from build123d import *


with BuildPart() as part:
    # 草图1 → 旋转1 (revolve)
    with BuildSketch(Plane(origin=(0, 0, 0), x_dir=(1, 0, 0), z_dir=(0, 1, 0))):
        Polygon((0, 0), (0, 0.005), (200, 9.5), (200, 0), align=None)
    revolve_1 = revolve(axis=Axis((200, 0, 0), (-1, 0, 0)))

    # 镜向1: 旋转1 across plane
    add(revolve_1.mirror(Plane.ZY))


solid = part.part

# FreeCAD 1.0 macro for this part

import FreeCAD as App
import Part
import Sketcher
from FreeCAD import Vector
Q = App.Units.Quantity

doc = App.newDocument("Part")
params = doc.addObject("Spreadsheet::Sheet", "Params")
for row, (alias, value) in enumerate([
    ("sketch1_width", "200 mm"),
    ("sketch1_height", "9.5 mm"),
    ("revolution_angle", "360 deg"),
], start=1):
    params.set(f"A{row}", alias)
    params.set(f"B{row}", "=" + value)
    params.setAlias(f"B{row}", alias)

body = doc.addObject("PartDesign::Body", "Body")

# Sketch on XZ plane
sketch1 = body.newObject("Sketcher::SketchObject", "Sketch")
sketch1.AttachmentSupport = (doc.getObject("XZ_Plane"), [""])
sketch1.MapMode = "FlatFace"
sketch1.addGeometry([
    Part.LineSegment(Vector(0, -0.005, 0), Vector(0, 0, 0)),
    Part.LineSegment(Vector(0, 0, 0), Vector(200, 0, 0)),
    Part.LineSegment(Vector(200, 0, 0), Vector(200, -9.5, 0)),
    Part.LineSegment(Vector(200, -9.5, 0), Vector(0, -0.005, 0)),
], False)
sketch1.addConstraint([
    Sketcher.Constraint("Coincident", 0, 2, 1, 1),
    Sketcher.Constraint("Coincident", 1, 2, 2, 1),
    Sketcher.Constraint("Coincident", 2, 2, 3, 1),
    Sketcher.Constraint("Coincident", 3, 2, 0, 1),
    Sketcher.Constraint("Vertical", 0),
    Sketcher.Constraint("Horizontal", 1),
    Sketcher.Constraint("Vertical", 2),
    Sketcher.Constraint("Coincident", 0, 2, -1, 1),
    Sketcher.Constraint("DistanceX", 1, 1, 1, 2, Q("200 mm")),
    Sketcher.Constraint("DistanceY", 2, 2, 2, 1, Q("9.5 mm")),
    Sketcher.Constraint("DistanceY", 0, 1, 0, 2, Q("0.005 mm")),
])
sketch1.setExpression("Constraints[8]", "Params.sketch1_width")
sketch1.setExpression("Constraints[9]", "Params.sketch1_height")
revolution = body.newObject("PartDesign::Revolution", "Revolution")
revolution.Profile = sketch1
revolution.ReferenceAxis = (sketch1, ["H_Axis"])
revolution.setExpression("Angle", "Params.revolution_angle")
doc.recompute()

mirrored = body.newObject("PartDesign::Mirrored", "Mirrored")
mirrored.Originals = [revolution]
mirrored.MirrorPlane = (doc.getObject("YZ_Plane"), [""])
body.Tip = mirrored

doc.recompute()
